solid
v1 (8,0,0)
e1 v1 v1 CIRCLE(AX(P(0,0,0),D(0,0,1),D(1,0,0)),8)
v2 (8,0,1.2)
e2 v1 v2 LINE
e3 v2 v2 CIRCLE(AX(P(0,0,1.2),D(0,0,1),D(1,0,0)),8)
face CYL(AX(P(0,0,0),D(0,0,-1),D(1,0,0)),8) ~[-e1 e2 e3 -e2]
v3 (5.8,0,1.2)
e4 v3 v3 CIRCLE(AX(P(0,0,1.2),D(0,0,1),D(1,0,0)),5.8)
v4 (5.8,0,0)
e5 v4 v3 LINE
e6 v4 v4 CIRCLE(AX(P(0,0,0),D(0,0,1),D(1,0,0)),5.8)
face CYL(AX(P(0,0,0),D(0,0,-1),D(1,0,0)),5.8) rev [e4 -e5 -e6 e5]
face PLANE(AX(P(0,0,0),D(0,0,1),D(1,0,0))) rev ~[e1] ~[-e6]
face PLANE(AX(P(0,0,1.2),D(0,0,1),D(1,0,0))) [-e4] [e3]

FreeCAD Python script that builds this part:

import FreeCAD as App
import Part
import Sketcher

V = App.Vector

doc = App.newDocument("Part")
body = doc.addObject("PartDesign::Body", "Body")

sketch1 = body.newObject("Sketcher::SketchObject", "Sketch")
sketch1.AttachmentSupport = (doc.getObject("XY_Plane"), [""])
sketch1.MapMode = "FlatFace"
sketch1.addGeometry(Part.Circle(V(0, 0, 0), V(0, 0, 1), 8), False)
sketch1.addGeometry(Part.Circle(V(0, 0, 0), V(0, 0, 1), 5.8), False)
sketch1.addConstraint(Sketcher.Constraint("Coincident", 0, 3, -1, 1))
sketch1.addConstraint(Sketcher.Constraint("Coincident", 1, 3, -1, 1))
sketch1.addConstraint(Sketcher.Constraint("Diameter", 0, 16.0))
sketch1.addConstraint(Sketcher.Constraint("Diameter", 1, 11.6))
pad1 = body.newObject("PartDesign::Pad", "Pad")
pad1.Profile = sketch1
pad1.Length = 1.2

doc.recompute()
